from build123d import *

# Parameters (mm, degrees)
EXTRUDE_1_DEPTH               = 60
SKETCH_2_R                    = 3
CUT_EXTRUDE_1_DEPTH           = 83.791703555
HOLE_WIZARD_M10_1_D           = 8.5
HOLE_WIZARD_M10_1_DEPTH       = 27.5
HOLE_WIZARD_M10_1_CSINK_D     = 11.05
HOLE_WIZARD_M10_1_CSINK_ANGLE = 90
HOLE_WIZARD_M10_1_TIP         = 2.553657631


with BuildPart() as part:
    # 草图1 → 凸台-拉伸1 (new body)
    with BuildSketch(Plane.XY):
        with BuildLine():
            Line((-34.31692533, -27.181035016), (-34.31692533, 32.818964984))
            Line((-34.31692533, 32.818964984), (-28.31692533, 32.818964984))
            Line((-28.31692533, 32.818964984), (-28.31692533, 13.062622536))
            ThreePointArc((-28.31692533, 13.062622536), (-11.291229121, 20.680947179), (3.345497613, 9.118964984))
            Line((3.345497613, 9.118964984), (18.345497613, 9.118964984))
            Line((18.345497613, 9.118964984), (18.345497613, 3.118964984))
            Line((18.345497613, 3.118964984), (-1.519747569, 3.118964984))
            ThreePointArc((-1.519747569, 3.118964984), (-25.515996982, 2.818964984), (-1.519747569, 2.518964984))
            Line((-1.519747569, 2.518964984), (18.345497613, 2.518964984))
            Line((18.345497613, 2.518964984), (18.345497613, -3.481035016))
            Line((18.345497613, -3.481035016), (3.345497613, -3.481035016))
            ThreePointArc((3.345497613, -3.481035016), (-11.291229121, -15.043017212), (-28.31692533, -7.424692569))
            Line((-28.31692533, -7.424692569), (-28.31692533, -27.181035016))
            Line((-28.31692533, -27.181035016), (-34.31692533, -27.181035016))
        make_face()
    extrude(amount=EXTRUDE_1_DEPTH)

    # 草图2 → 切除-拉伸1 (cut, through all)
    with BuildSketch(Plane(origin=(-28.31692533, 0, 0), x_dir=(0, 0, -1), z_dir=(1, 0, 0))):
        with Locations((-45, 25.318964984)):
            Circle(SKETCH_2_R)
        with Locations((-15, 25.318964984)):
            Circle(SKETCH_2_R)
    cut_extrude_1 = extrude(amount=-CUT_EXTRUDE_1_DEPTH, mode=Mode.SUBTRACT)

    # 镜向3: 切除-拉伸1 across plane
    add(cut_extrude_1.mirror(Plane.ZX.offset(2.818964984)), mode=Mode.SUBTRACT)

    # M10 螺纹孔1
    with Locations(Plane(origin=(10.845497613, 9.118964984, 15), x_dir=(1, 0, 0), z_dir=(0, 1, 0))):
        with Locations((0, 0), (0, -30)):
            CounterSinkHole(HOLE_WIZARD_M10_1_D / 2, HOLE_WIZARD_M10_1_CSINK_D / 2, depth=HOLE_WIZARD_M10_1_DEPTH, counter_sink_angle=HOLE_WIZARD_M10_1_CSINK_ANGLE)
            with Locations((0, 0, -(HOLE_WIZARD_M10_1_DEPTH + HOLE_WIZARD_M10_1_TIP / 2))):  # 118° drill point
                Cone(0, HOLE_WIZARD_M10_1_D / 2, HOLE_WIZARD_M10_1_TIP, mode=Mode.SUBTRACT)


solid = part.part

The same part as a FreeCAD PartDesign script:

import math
import FreeCAD as App
import Part
import Sketcher
Q = App.Units.Quantity

doc = App.newDocument("Part")
body = doc.addObject("PartDesign::Body", "Body")

# Sketch on XY plane
sketch1 = body.newObject("Sketcher::SketchObject", "Sketch")
sketch1.AttachmentSupport = (doc.getObject("XY_Plane"), [""])
sketch1.MapMode = "FlatFace"
sketch1.addGeometry([
    Part.LineSegment(App.Vector(-34.316925, 32.818965, 0), App.Vector(-34.316925, -27.181035, 0)),  # 0
    Part.LineSegment(App.Vector(-34.316925, -27.181035, 0), App.Vector(-28.316925, -27.181035, 0)),  # 1
    Part.LineSegment(App.Vector(-28.316925, -27.181035, 0), App.Vector(-28.316925, -7.424693, 0)),  # 2
    Part.ArcOfCircle(Part.Circle(App.Vector(-13.515997, 2.818965, 0), App.Vector(0, 0, 1), 18), math.radians(-145.313062), math.radians(-20.487315)),  # 3
    Part.LineSegment(App.Vector(3.345498, -3.481035, 0), App.Vector(18.345498, -3.481035, 0)),  # 4
    Part.LineSegment(App.Vector(18.345498, -3.481035, 0), App.Vector(18.345498, 2.518965, 0)),  # 5
    Part.LineSegment(App.Vector(18.345498, 2.518965, 0), App.Vector(-1.519748, 2.518965, 0)),  # 6
    Part.ArcOfCircle(Part.Circle(App.Vector(-13.515997, 2.818965, 0), App.Vector(0, 0, 1), 12), math.radians(1.432544), math.radians(358.567456)),  # 7
    Part.LineSegment(App.Vector(-1.519748, 3.118965, 0), App.Vector(18.345498, 3.118965, 0)),  # 8
    Part.LineSegment(App.Vector(18.345498, 3.118965, 0), App.Vector(18.345498, 9.118965, 0)),  # 9
    Part.LineSegment(App.Vector(18.345498, 9.118965, 0), App.Vector(3.345498, 9.118965, 0)),  # 10
    Part.ArcOfCircle(Part.Circle(App.Vector(-13.515997, 2.818965, 0), App.Vector(0, 0, 1), 18), math.radians(20.487315), math.radians(145.313062)),  # 11
    Part.LineSegment(App.Vector(-28.316925, 13.062623, 0), App.Vector(-28.316925, 32.818965, 0)),  # 12
    Part.LineSegment(App.Vector(-28.316925, 32.818965, 0), App.Vector(-34.316925, 32.818965, 0)),  # 13
], False)
sketch1.addConstraint([
    Sketcher.Constraint("Coincident", 0, 2, 1, 1),
    Sketcher.Constraint("Coincident", 1, 2, 2, 1),
    Sketcher.Constraint("Coincident", 2, 2, 3, 1),
    Sketcher.Constraint("Coincident", 3, 2, 4, 1),
    Sketcher.Constraint("Coincident", 4, 2, 5, 1),
    Sketcher.Constraint("Coincident", 5, 2, 6, 1),
    Sketcher.Constraint("Coincident", 6, 2, 7, 2),
    Sketcher.Constraint("Coincident", 7, 1, 8, 1),
    Sketcher.Constraint("Coincident", 8, 2, 9, 1),
    Sketcher.Constraint("Coincident", 9, 2, 10, 1),
    Sketcher.Constraint("Coincident", 10, 2, 11, 1),
    Sketcher.Constraint("Coincident", 11, 2, 12, 1),
    Sketcher.Constraint("Coincident", 12, 2, 13, 1),
    Sketcher.Constraint("Coincident", 13, 2, 0, 1),
    Sketcher.Constraint("Vertical", 0),
    Sketcher.Constraint("Horizontal", 1),
    Sketcher.Constraint("Vertical", 2),
    Sketcher.Constraint("Horizontal", 4),
    Sketcher.Constraint("Vertical", 5),
    Sketcher.Constraint("Horizontal", 6),
    Sketcher.Constraint("Horizontal", 8),
    Sketcher.Constraint("Vertical", 9),
    Sketcher.Constraint("Horizontal", 10),
    Sketcher.Constraint("Vertical", 12),
    Sketcher.Constraint("Horizontal", 13),
    Sketcher.Constraint("Coincident", 7, 3, 3, 3),
    Sketcher.Constraint("Coincident", 11, 3, 3, 3),
    Sketcher.Constraint("Equal", 3, 11),
    Sketcher.Constraint("Vertical", 6, 2, 7, 1),
    Sketcher.Constraint("Vertical", 5, 2, 8, 2),
    Sketcher.Constraint("Vertical", 3, 2, 10, 2),
    Sketcher.Constraint("Vertical", 2, 2, 11, 2),
    Sketcher.Constraint("Equal", 13, 5),
    Sketcher.Constraint("Equal", 2, 12),
    Sketcher.Constraint("Radius", 3, Q("18 mm")),
    Sketcher.Constraint("Radius", 7, Q("12 mm")),
    Sketcher.Constraint("DistanceX", 1, 1, 1, 2, Q("6 mm")),
    Sketcher.Constraint("DistanceX", 4, 1, 4, 2, Q("15 mm")),
    Sketcher.Constraint("DistanceY", 0, 2, 0, 1, Q("60 mm")),
    Sketcher.Constraint("DistanceY", 3, 2, 7, 3, Q("6.3 mm")),
    Sketcher.Constraint("DistanceY", 2, 1, 2, 2, Q("19.756342 mm")),
    Sketcher.Constraint("DistanceX", 3, 3, -1, 1, Q("13.515997 mm")),
    Sketcher.Constraint("DistanceY", -1, 1, 3, 3, Q("2.818965 mm")),
])
pad1 = body.newObject("PartDesign::Pad", "Pad")
pad1.Profile = sketch1
pad1.Length = 60

# Sketch on YZ plane
sketch2 = body.newObject("Sketcher::SketchObject", "Sketch001")
sketch2.AttachmentSupport = (doc.getObject("YZ_Plane"), [""])
sketch2.MapMode = "FlatFace"
sketch2.AttachmentOffset = App.Placement(App.Vector(0, 0, -28.316925), App.Rotation())
sketch2.addGeometry([
    Part.Circle(App.Vector(25.318965, 45, 0), App.Vector(0, 0, 1), 3),
    Part.Circle(App.Vector(25.318965, 15, 0), App.Vector(0, 0, 1), 3),
], False)
sketch2.addConstraint([
    Sketcher.Constraint("Equal", 0, 1),
    Sketcher.Constraint("Vertical", 0, 3, 1, 3),
    Sketcher.Constraint("Diameter", 0, Q("6 mm")),
    Sketcher.Constraint("DistanceY", -1, 1, 0, 3, Q("45 mm")),
    Sketcher.Constraint("DistanceY", -1, 1, 1, 3, Q("15 mm")),
    Sketcher.Constraint("DistanceX", -1, 1, 0, 3, Q("25.318965 mm")),
])
pocket1 = body.newObject("PartDesign::Pocket", "Pocket")
pocket1.Profile = sketch2
pocket1.Type = "ThroughAll"
doc.recompute()

datumplane = body.newObject("PartDesign::Plane", "DatumPlane")
datumplane.AttachmentSupport = (doc.getObject("XZ_Plane"), [""])
datumplane.MapMode = "FlatFace"
datumplane.AttachmentOffset = App.Placement(App.Vector(0, 0, -2.818965), App.Rotation())
mirrored = body.newObject("PartDesign::Mirrored", "Mirrored")
mirrored.Originals = [pocket1]
mirrored.MirrorPlane = (datumplane, [""])
body.Tip = mirrored

# Sketch on XZ plane
sketch3 = body.newObject("Sketcher::SketchObject", "Sketch002")
sketch3.AttachmentSupport = (doc.getObject("XZ_Plane"), [""])
sketch3.MapMode = "FlatFace"
sketch3.AttachmentOffset = App.Placement(App.Vector(0, 0, -9.118965), App.Rotation())
sketch3.addGeometry([
    Part.Circle(App.Vector(10.845498, 15, 0), App.Vector(0, 0, 1), 4.25),
    Part.Circle(App.Vector(10.845498, 45, 0), App.Vector(0, 0, 1), 4.25),
], False)
sketch3.addConstraint([
    Sketcher.Constraint("Equal", 0, 1),
    Sketcher.Constraint("Vertical", 0, 3, 1, 3),
    Sketcher.Constraint("Diameter", 0, Q("8.5 mm")),
    Sketcher.Constraint("DistanceY", -1, 1, 0, 3, Q("15 mm")),
    Sketcher.Constraint("DistanceY", -1, 1, 1, 3, Q("45 mm")),
    Sketcher.Constraint("DistanceX", -1, 1, 0, 3, Q("10.845498 mm")),
])
doc.recompute()
hole = body.newObject("PartDesign::Hole", "Hole")
hole.Profile = sketch3
hole.ThreadType = "None"
hole.Diameter = 8.5
hole.DepthType = "Dimension"
hole.Depth = 27.5
hole.DrillPoint = "Angled"
hole.DrillPointAngle = 118
hole.HoleCutType = "Countersink"
hole.HoleCutDiameter = 11.05
hole.HoleCutCountersinkAngle = 90
hole.Reversed = True

doc.recompute()
